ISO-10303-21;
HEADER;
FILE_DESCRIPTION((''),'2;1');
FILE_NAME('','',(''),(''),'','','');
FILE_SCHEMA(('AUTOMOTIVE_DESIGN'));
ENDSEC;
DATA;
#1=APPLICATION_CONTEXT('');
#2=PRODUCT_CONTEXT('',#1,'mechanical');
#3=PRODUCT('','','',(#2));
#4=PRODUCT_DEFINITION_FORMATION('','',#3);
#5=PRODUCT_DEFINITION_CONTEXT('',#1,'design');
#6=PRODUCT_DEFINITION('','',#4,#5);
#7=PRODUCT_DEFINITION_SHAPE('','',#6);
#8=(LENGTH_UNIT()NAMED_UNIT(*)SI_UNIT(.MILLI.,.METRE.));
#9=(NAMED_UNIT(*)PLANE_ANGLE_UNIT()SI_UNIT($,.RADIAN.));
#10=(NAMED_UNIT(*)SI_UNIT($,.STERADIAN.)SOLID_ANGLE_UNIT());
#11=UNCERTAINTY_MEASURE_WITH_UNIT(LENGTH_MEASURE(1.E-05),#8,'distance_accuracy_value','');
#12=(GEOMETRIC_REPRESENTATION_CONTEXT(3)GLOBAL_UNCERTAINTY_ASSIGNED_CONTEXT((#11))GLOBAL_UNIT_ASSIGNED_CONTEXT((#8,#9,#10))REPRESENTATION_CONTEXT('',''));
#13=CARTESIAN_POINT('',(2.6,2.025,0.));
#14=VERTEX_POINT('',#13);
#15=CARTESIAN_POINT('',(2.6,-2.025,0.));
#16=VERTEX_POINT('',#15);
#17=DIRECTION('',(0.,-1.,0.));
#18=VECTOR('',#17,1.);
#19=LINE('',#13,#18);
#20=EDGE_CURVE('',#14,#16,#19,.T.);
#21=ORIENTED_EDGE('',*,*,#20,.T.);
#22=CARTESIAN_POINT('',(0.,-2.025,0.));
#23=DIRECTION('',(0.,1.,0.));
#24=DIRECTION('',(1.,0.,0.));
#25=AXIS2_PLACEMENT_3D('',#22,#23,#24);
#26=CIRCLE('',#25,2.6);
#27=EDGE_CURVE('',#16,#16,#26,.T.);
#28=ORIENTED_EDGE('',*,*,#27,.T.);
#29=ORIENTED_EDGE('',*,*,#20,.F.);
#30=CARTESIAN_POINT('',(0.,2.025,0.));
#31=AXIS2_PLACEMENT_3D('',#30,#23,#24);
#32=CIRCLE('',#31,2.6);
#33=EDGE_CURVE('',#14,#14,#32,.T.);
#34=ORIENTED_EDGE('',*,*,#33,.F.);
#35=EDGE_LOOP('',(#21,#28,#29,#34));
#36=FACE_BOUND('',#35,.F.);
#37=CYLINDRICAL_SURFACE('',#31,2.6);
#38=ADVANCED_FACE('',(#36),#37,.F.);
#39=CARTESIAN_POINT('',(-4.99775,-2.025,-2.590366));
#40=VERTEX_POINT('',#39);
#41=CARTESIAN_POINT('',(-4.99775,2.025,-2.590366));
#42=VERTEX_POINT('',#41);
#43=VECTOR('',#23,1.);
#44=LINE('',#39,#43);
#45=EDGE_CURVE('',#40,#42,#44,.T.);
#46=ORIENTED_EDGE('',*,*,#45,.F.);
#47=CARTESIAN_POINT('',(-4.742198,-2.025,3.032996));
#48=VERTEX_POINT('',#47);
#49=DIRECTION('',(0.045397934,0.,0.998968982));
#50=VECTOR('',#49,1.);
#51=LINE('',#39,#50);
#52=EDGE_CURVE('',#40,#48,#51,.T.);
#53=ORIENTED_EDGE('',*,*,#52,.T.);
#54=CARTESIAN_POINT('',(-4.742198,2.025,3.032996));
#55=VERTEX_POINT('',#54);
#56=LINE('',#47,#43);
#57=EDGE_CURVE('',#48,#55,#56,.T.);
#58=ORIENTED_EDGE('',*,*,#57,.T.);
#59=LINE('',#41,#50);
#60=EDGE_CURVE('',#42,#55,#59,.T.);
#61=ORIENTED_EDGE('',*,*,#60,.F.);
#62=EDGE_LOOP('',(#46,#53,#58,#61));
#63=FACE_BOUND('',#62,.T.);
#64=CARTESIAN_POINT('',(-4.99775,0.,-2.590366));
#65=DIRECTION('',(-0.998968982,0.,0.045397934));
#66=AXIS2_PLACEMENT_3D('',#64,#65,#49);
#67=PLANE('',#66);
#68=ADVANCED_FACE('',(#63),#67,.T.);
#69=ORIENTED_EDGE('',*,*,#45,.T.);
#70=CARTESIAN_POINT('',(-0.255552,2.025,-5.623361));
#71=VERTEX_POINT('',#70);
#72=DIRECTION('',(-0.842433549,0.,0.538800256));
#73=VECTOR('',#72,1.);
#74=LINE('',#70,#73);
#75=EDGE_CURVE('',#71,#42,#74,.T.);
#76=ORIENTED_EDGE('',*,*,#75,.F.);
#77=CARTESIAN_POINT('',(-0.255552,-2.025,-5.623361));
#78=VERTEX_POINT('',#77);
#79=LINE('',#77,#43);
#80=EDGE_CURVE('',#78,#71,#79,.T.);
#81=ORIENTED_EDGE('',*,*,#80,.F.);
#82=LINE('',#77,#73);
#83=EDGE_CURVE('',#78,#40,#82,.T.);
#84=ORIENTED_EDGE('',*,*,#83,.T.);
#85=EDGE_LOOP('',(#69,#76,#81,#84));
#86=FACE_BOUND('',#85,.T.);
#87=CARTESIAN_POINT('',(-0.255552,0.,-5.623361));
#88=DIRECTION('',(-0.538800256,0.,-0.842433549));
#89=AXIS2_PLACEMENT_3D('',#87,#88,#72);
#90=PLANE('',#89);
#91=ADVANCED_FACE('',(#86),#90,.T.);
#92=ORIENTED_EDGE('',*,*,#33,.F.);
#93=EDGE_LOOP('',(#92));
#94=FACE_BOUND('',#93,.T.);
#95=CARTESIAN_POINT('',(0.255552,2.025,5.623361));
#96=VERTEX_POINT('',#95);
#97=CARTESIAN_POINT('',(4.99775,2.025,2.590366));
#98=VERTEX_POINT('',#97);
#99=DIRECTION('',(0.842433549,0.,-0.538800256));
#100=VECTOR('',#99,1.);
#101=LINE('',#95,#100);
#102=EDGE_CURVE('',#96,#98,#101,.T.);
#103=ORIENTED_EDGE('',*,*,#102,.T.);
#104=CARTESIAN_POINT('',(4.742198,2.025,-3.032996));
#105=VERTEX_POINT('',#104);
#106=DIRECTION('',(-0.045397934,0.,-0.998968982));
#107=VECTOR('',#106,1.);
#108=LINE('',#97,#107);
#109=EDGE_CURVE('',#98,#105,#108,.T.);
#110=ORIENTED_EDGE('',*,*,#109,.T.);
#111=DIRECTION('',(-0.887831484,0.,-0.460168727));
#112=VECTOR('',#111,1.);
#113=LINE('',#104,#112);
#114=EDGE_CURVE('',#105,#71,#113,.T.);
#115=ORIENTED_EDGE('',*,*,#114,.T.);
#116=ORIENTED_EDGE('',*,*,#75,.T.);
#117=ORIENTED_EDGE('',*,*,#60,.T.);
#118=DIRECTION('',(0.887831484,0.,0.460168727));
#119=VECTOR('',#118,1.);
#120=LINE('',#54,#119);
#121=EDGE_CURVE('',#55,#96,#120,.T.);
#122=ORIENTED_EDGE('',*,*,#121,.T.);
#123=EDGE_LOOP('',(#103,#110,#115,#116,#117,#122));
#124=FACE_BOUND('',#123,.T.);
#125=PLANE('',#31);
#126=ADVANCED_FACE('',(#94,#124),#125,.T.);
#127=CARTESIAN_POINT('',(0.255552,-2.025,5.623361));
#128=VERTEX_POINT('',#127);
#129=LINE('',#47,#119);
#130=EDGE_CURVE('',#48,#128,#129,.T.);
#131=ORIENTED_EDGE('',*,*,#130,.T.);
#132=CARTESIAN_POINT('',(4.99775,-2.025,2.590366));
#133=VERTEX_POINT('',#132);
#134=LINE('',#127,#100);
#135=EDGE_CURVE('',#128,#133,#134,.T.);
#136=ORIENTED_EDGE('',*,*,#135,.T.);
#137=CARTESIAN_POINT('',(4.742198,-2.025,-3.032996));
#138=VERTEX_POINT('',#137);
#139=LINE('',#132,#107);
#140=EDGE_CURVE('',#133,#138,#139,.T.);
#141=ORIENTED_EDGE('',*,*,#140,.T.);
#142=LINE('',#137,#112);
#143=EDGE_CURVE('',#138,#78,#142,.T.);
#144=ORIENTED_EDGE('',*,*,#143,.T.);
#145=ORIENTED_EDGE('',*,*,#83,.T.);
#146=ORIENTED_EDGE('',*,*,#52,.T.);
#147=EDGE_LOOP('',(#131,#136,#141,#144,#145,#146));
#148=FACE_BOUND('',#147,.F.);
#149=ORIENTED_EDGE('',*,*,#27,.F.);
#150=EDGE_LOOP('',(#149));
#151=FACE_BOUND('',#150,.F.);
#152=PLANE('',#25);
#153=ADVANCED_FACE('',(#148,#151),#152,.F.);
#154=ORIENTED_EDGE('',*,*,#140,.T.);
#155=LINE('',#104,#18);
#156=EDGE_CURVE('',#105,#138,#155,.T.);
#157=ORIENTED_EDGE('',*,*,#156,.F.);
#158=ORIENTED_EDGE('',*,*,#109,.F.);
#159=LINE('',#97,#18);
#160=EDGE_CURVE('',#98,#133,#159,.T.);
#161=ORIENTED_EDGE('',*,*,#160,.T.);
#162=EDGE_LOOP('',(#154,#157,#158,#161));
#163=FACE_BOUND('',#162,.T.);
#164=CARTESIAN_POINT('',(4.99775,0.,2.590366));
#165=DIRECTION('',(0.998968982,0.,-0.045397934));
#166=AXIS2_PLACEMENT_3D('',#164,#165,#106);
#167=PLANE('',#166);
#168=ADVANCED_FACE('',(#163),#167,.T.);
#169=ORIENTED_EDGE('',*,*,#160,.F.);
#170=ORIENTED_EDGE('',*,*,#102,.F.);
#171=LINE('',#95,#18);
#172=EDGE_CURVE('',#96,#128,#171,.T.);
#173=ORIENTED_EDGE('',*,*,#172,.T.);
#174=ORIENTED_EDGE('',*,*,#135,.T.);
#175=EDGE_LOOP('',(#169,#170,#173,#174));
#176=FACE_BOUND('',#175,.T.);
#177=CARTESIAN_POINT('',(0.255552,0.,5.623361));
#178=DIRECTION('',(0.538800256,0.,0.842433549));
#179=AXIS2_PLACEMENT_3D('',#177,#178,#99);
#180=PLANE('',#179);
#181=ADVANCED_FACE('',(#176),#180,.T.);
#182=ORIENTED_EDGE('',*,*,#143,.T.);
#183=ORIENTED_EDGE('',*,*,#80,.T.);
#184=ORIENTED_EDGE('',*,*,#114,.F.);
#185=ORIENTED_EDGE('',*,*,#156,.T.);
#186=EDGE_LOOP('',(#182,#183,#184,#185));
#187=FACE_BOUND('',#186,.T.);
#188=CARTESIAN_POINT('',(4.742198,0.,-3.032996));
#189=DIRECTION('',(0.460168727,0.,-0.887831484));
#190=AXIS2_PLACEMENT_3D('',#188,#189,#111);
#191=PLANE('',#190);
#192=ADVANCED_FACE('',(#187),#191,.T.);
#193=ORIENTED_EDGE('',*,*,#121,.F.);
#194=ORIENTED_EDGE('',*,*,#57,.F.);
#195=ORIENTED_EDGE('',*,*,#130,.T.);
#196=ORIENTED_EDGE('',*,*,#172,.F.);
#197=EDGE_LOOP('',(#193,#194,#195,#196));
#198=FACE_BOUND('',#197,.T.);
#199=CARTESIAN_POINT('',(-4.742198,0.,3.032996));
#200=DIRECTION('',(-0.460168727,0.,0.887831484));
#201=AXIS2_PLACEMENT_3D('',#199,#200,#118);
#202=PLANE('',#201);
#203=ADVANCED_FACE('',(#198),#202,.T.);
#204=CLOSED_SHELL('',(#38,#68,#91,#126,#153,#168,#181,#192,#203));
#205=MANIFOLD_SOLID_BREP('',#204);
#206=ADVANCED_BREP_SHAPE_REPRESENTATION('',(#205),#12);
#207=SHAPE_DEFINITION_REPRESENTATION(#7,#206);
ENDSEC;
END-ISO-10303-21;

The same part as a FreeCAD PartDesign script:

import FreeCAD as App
import Part
import Sketcher
from FreeCAD import Vector
Q = App.Units.Quantity


def add_polygon(sketch, points):
    """Adds a closed chain of lines whose ends are joined by coincident constraints."""
    first, n = sketch.GeometryCount, len(points)
    for a, b in zip(points, points[1:] + points[:1]):
        sketch.addGeometry(Part.LineSegment(App.Vector(*a, 0), App.Vector(*b, 0)), False)
    for i in range(n):
        sketch.addConstraint(Sketcher.Constraint("Coincident", first + i, 2, first + (i + 1) % n, 1))

doc = App.newDocument("Part")
body = doc.addObject("PartDesign::Body", "Body")

# Sketch on XZ plane
sketch1 = body.newObject("Sketcher::SketchObject", "Sketch")
sketch1.AttachmentSupport = (doc.getObject("XZ_Plane"), [""])
sketch1.MapMode = "FlatFace"
add_polygon(sketch1, [(4.742198, -3.032996), (-0.255552, -5.623361), (-4.99775, -2.590366), (-4.742198, 3.032996), (0.255552, 5.623361), (4.99775, 2.590366)])  # lines 0-5
sketch1.addConstraint(Sketcher.Constraint("Symmetric", 0, 2, 3, 2, -1, 1))
sketch1.addConstraint(Sketcher.Constraint("Symmetric", 1, 2, 4, 2, -1, 1))
sketch1.addConstraint(Sketcher.Constraint("Symmetric", 2, 2, 5, 2, -1, 1))
sketch1.addConstraint(Sketcher.Constraint("Equal", 0, 1))
sketch1.addConstraint(Sketcher.Constraint("Equal", 1, 2))
sketch1.addConstraint(Sketcher.Constraint("DistanceX", 1, 2, 4, 2, Q("9.9955 mm")))
sketch1.addConstraint(Sketcher.Constraint("DistanceY", 0, 2, -1, 1, Q("5.623361 mm")))
sketch1.addConstraint(Sketcher.Constraint("DistanceY", 1, 2, 2, 2, Q("5.623361 mm")))
sketch1.addConstraint(Sketcher.Constraint("DistanceX", 2, 2, 3, 2, Q("4.99775 mm")))
pad1 = body.newObject("PartDesign::Pad", "Pad")
pad1.Profile = sketch1
pad1.Length = 4.05
pad1.Midplane = True

# Sketch on XZ plane
sketch2 = body.newObject("Sketcher::SketchObject", "Sketch001")
sketch2.AttachmentSupport = (doc.getObject("XZ_Plane"), [""])
sketch2.MapMode = "FlatFace"
sketch2.AttachmentOffset = App.Placement(Vector(0, 0, -2.025), App.Rotation())
sketch2.addGeometry(Part.Circle(Vector(0, 0, 0), Vector(0, 0, 1), 2.6), False)
sketch2.addConstraint(Sketcher.Constraint("Coincident", 0, 3, -1, 1))
sketch2.addConstraint(Sketcher.Constraint("Diameter", 0, Q("5.2 mm")))
pocket1 = body.newObject("PartDesign::Pocket", "Pocket")
pocket1.Profile = sketch2
pocket1.Type = "UpToFirst"
pocket1.Reversed = True

doc.recompute()
